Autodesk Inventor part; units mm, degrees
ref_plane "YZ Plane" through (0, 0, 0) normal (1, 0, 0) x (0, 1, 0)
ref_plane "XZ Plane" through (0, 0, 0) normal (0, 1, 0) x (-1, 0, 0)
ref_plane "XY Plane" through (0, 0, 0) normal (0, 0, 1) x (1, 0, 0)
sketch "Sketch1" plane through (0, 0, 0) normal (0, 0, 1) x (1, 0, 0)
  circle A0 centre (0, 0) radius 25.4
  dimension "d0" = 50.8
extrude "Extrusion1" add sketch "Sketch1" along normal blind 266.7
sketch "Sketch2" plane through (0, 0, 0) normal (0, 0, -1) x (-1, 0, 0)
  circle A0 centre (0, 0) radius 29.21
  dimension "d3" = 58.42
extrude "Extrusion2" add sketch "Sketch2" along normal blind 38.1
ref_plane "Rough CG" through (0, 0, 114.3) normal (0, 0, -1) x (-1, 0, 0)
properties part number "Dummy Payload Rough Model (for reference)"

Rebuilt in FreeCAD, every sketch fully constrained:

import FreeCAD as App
import Part
import Sketcher
Q = App.Units.Quantity

doc = App.newDocument("Part")
body = doc.addObject("PartDesign::Body", "Body")

# Sketch on XY plane
sketch1 = doc.addObject("Sketcher::SketchObject", "Sketch")
body.addObject(sketch1)
sketch1.AttachmentSupport = (doc.XY_Plane, [""])
sketch1.MapMode = "FlatFace"
sketch1.addGeometry(Part.Circle(App.Vector(0, 0, 0), App.Vector(0, 0, 1), 25), False)
sketch1.addConstraint([
    Sketcher.Constraint("Coincident", 0, 3, -1, 1),
    Sketcher.Constraint("Diameter", 0, Q("2 in")),
])
pad1 = doc.addObject("PartDesign::Pad", "Pad")
body.addObject(pad1)
pad1.Profile = sketch1
pad1.Length = Q("10.5 in")

# Sketch on XY plane
sketch2 = doc.addObject("Sketcher::SketchObject", "Sketch001")
body.addObject(sketch2)
sketch2.AttachmentSupport = (doc.XY_Plane, [""])
sketch2.MapMode = "FlatFace"
sketch2.addGeometry(Part.Circle(App.Vector(0, 0, 0), App.Vector(0, 0, 1), 29), False)
sketch2.addConstraint([
    Sketcher.Constraint("Coincident", 0, 3, -1, 1),
    Sketcher.Constraint("Diameter", 0, Q("2.3 in")),
])
pad2 = doc.addObject("PartDesign::Pad", "Pad001")
body.addObject(pad2)
pad2.Profile = sketch2
pad2.Length = Q("1.5 in")
pad2.Reversed = True

doc.recompute()
